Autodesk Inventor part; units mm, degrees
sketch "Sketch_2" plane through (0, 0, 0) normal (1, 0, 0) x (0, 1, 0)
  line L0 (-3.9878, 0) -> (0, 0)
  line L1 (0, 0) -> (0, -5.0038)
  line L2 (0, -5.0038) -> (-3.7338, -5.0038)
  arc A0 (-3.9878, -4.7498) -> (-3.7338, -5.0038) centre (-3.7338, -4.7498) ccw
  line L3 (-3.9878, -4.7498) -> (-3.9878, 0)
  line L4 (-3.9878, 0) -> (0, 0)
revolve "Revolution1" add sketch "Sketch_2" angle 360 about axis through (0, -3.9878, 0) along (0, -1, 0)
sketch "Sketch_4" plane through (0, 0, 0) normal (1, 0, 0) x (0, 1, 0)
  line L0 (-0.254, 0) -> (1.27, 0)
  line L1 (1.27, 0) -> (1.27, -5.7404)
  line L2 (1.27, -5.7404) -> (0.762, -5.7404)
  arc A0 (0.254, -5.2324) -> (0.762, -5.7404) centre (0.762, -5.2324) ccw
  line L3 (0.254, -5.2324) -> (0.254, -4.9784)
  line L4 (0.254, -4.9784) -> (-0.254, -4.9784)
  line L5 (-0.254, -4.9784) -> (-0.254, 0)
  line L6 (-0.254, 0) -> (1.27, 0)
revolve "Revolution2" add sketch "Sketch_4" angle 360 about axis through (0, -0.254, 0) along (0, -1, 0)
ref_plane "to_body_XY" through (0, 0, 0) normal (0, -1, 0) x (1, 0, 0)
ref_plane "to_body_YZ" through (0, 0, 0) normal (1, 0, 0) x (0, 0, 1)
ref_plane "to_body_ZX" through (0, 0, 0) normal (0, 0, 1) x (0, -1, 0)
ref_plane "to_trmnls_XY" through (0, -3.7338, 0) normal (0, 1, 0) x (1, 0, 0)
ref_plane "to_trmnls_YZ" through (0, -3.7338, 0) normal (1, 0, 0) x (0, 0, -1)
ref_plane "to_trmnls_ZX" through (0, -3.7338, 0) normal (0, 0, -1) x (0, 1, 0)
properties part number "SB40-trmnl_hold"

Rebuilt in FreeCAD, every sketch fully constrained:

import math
import FreeCAD as App
import Part
import Sketcher
from FreeCAD import Vector
Q = App.Units.Quantity

doc = App.newDocument("Part")
body = doc.addObject("PartDesign::Body", "Body")

# Sketch on YZ plane
sketch1 = doc.addObject("Sketcher::SketchObject", "Sketch")
body.addObject(sketch1)
sketch1.AttachmentSupport = (doc.YZ_Plane, [""])
sketch1.MapMode = "FlatFace"
sketch1.addGeometry([
    Part.LineSegment(Vector(0, 0, 0), Vector(-3.9878, 0, 0)),  # 0
    Part.LineSegment(Vector(-3.9878, 0, 0), Vector(-3.9878, -4.7498, 0)),  # 1
    Part.ArcOfCircle(Part.Circle(Vector(-3.7338, -4.7498, 0), Vector(0, 0, 1), 0.254), math.radians(180), math.radians(270)),  # 2
    Part.LineSegment(Vector(-3.7338, -5.0038, 0), Vector(0, -5.0038, 0)),  # 3
    Part.LineSegment(Vector(0, -5.0038, 0), Vector(0, 0, 0)),  # 4
], False)
sketch1.addConstraint([
    Sketcher.Constraint("Coincident", 0, 2, 1, 1),
    Sketcher.Constraint("Tangent", 1, 2, 2, 1),
    Sketcher.Constraint("Tangent", 2, 2, 3, 1),
    Sketcher.Constraint("Coincident", 3, 2, 4, 1),
    Sketcher.Constraint("Coincident", 4, 2, 0, 1),
    Sketcher.Constraint("Horizontal", 0),
    Sketcher.Constraint("Vertical", 1),
    Sketcher.Constraint("Horizontal", 3),
    Sketcher.Constraint("Vertical", 4),
    Sketcher.Constraint("Coincident", 4, 2, -1, 1),
    Sketcher.Constraint("Radius", 2, Q("0.01 in")),
    Sketcher.Constraint("DistanceX", 0, 2, 0, 1, Q("0.157 in")),
    Sketcher.Constraint("DistanceY", 1, 2, 1, 1, Q("0.187 in")),
])
revolution = doc.addObject("PartDesign::Revolution", "Revolution")
body.addObject(revolution)
revolution.Profile = sketch1
revolution.ReferenceAxis = (sketch1, ["H_Axis"])
revolution.Angle = 360

# Sketch on YZ plane
sketch2 = doc.addObject("Sketcher::SketchObject", "Sketch001")
body.addObject(sketch2)
sketch2.AttachmentSupport = (doc.YZ_Plane, [""])
sketch2.MapMode = "FlatFace"
sketch2.addGeometry([
    Part.LineSegment(Vector(1.27, 0, 0), Vector(-0.254, 0, 0)),  # 0
    Part.LineSegment(Vector(-0.254, 0, 0), Vector(-0.254, -4.9784, 0)),  # 1
    Part.LineSegment(Vector(-0.254, -4.9784, 0), Vector(0.254, -4.9784, 0)),  # 2
    Part.LineSegment(Vector(0.254, -4.9784, 0), Vector(0.254, -5.2324, 0)),  # 3
    Part.ArcOfCircle(Part.Circle(Vector(0.762, -5.2324, 0), Vector(0, 0, 1), 0.508), math.radians(180), math.radians(270)),  # 4
    Part.LineSegment(Vector(0.762, -5.7404, 0), Vector(1.27, -5.7404, 0)),  # 5
    Part.LineSegment(Vector(1.27, -5.7404, 0), Vector(1.27, 0, 0)),  # 6
], False)
sketch2.addConstraint([
    Sketcher.Constraint("Coincident", 0, 2, 1, 1),
    Sketcher.Constraint("Coincident", 1, 2, 2, 1),
    Sketcher.Constraint("Coincident", 2, 2, 3, 1),
    Sketcher.Constraint("Tangent", 3, 2, 4, 1),
    Sketcher.Constraint("Tangent", 4, 2, 5, 1),
    Sketcher.Constraint("Coincident", 5, 2, 6, 1),
    Sketcher.Constraint("Coincident", 6, 2, 0, 1),
    Sketcher.Constraint("Horizontal", 0),
    Sketcher.Constraint("Vertical", 1),
    Sketcher.Constraint("Horizontal", 2),
    Sketcher.Constraint("Vertical", 3),
    Sketcher.Constraint("Horizontal", 5),
    Sketcher.Constraint("Vertical", 6),
    Sketcher.Constraint("PointOnObject", 0, 2, -1),
    Sketcher.Constraint("Equal", 2, 5),
    Sketcher.Constraint("Radius", 4, Q("0.02 in")),
    Sketcher.Constraint("DistanceX", 0, 2, 0, 1, Q("0.06 in")),
    Sketcher.Constraint("DistanceY", 3, 2, 3, 1, Q("0.01 in")),
    Sketcher.Constraint("DistanceY", 1, 2, 1, 1, Q("0.196 in")),
    Sketcher.Constraint("DistanceX", -1, 1, 4, 3, Q("0.03 in")),
])
revolution2 = doc.addObject("PartDesign::Revolution", "Revolution001")
body.addObject(revolution2)
revolution2.Profile = sketch2
revolution2.ReferenceAxis = (sketch2, ["H_Axis"])
revolution2.Angle = 360

doc.recompute()
